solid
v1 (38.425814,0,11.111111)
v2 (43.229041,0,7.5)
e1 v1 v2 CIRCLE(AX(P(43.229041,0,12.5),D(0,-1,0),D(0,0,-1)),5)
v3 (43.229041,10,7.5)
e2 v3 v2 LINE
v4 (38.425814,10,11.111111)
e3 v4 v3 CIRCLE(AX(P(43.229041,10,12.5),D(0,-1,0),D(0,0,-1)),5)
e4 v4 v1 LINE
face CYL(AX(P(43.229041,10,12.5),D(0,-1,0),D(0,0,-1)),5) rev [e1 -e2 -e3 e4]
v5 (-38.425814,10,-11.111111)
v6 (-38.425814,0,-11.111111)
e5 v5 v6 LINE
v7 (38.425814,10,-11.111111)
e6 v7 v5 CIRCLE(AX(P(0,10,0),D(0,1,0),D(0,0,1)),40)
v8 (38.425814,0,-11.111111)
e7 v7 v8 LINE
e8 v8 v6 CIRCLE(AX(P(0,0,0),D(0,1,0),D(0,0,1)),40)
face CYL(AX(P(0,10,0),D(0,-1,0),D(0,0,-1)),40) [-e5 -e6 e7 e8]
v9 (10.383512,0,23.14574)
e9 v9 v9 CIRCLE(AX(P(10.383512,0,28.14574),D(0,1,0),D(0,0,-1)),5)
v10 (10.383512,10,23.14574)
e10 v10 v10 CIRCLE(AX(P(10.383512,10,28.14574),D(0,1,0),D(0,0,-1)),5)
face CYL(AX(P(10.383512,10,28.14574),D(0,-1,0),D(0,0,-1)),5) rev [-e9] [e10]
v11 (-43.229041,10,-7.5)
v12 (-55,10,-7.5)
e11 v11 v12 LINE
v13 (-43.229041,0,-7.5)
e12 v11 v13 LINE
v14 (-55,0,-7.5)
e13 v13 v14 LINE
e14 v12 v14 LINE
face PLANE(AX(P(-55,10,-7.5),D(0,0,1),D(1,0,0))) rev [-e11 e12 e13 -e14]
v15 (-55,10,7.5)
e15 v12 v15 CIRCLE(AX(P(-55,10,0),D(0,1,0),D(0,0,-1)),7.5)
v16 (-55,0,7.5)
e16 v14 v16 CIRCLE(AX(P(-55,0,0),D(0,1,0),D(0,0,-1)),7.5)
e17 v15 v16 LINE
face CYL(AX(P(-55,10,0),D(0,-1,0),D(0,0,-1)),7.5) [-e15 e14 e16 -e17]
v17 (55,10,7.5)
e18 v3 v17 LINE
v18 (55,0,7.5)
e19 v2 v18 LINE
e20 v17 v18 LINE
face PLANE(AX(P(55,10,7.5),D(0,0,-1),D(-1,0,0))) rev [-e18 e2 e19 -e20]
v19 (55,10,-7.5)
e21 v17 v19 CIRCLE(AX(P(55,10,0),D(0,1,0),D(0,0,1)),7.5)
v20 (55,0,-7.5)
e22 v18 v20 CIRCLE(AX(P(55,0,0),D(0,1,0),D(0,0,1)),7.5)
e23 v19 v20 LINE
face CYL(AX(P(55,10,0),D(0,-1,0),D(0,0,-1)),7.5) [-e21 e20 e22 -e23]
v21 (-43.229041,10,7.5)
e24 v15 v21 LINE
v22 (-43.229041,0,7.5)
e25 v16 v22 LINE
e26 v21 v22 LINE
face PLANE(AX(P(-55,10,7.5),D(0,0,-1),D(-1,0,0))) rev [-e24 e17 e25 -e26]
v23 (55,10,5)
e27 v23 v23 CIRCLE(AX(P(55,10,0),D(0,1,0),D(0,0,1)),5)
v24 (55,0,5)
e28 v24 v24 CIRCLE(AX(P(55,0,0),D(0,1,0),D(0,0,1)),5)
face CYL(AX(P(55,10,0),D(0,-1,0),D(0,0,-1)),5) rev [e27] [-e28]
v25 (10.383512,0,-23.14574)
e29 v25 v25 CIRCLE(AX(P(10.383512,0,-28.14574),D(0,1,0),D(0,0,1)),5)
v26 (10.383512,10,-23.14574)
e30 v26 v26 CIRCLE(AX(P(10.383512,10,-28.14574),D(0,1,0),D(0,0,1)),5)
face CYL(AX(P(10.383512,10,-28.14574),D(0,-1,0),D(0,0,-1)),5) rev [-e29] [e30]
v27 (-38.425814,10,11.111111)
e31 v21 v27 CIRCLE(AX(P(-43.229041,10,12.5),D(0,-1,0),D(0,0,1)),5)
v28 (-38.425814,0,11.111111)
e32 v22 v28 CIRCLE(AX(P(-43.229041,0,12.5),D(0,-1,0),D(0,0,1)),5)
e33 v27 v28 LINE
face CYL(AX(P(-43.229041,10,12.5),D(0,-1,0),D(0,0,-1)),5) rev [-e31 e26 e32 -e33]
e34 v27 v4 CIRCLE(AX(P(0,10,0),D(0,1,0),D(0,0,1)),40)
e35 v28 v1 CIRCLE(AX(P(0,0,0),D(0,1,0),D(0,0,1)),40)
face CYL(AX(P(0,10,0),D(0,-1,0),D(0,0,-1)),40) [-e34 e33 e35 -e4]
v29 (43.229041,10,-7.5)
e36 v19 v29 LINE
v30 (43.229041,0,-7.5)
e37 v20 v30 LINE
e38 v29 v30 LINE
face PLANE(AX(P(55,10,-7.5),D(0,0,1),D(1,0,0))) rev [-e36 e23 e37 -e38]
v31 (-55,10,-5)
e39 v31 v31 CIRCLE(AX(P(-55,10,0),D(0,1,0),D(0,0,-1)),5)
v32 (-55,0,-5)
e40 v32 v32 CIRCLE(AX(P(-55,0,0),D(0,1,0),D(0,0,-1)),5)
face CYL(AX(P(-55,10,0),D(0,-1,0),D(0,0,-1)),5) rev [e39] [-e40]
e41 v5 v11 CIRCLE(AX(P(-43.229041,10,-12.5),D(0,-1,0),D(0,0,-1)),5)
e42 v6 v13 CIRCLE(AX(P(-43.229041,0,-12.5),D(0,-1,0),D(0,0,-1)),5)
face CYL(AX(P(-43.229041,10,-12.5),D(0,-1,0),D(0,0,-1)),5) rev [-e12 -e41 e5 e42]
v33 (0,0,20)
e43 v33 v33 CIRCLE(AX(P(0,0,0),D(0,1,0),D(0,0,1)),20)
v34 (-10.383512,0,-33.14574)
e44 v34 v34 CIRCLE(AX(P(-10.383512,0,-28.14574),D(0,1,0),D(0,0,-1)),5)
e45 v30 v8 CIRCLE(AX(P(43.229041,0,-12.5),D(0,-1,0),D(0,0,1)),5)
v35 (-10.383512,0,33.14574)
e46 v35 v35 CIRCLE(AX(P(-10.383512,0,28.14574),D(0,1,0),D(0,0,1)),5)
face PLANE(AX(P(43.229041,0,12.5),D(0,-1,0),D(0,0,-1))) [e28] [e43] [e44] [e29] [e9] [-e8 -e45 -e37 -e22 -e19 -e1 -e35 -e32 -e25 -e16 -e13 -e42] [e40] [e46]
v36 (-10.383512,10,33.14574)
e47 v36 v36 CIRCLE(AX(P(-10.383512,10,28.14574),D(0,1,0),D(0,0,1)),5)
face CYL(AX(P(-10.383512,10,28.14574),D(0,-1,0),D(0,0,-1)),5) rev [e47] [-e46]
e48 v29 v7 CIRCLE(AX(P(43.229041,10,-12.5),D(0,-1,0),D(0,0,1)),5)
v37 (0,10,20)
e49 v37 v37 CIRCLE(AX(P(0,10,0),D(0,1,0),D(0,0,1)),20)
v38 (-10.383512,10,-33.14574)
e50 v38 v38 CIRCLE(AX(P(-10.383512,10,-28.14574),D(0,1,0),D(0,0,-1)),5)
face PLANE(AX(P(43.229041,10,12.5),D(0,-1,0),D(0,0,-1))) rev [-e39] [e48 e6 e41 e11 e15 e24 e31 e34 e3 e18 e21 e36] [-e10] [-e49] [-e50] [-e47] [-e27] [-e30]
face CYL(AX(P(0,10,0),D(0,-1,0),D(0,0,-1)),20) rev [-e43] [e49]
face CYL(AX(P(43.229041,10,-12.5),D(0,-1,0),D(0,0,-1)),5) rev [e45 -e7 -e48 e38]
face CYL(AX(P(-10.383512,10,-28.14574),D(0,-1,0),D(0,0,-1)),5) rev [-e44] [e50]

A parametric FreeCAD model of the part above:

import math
import FreeCAD as App
import Part
import Sketcher

V = App.Vector

doc = App.newDocument("Part")
body = doc.addObject("PartDesign::Body", "Body")

# Sketch on XZ plane
sketch1 = body.newObject("Sketcher::SketchObject", "Sketch")
sketch1.AttachmentSupport = (doc.getObject("XZ_Plane"), [""])
sketch1.MapMode = "FlatFace"
sketch1.addGeometry([
    Part.LineSegment(V(-55, 8, 0), V(-43, 8, 0)),  # 0
    Part.ArcOfCircle(Part.Circle(V(-43, 13, 0), V(0, 0, 1), 5), math.radians(-90), math.radians(-16)),  # 1
    Part.ArcOfCircle(Part.Circle(V(0, 0, 0), V(0, 0, 1), 40), math.radians(16), math.radians(164)),  # 2
    Part.ArcOfCircle(Part.Circle(V(43, 13, 0), V(0, 0, 1), 5), math.radians(-164), math.radians(-90)),  # 3
    Part.LineSegment(V(43, 8, 0), V(55, 8, 0)),  # 4
    Part.ArcOfCircle(Part.Circle(V(55, 0, 0), V(0, 0, 1), 8), math.radians(-90), math.radians(90)),  # 5
    Part.LineSegment(V(55, -8, 0), V(43, -8, 0)),  # 6
    Part.ArcOfCircle(Part.Circle(V(43, -13, 0), V(0, 0, 1), 5), math.radians(90), math.radians(164)),  # 7
    Part.ArcOfCircle(Part.Circle(V(0, 0, 0), V(0, 0, 1), 40), math.radians(-164), math.radians(-16)),  # 8
    Part.ArcOfCircle(Part.Circle(V(-43, -13, 0), V(0, 0, 1), 5), math.radians(16), math.radians(90)),  # 9
    Part.LineSegment(V(-43, -8, 0), V(-55, -8, 0)),  # 10
    Part.ArcOfCircle(Part.Circle(V(-55, 0, 0), V(0, 0, 1), 8), math.radians(90), math.radians(270)),  # 11
    Part.Circle(V(-10, 28, 0), V(0, 0, 1), 5),  # 12
    Part.Circle(V(10, 28, 0), V(0, 0, 1), 5),  # 13
    Part.Circle(V(-55, 0, 0), V(0, 0, 1), 5),  # 14
    Part.Circle(V(-10, -28, 0), V(0, 0, 1), 5),  # 15
    Part.Circle(V(0, 0, 0), V(0, 0, 1), 20),  # 16
    Part.Circle(V(55, 0, 0), V(0, 0, 1), 5),  # 17
    Part.Circle(V(10, -28, 0), V(0, 0, 1), 5),  # 18
], False)
sketch1.addConstraint([
    Sketcher.Constraint("Tangent", 0, 2, 1, 1),
    Sketcher.Constraint("Tangent", 1, 2, 2, 2),
    Sketcher.Constraint("Tangent", 2, 1, 3, 1),
    Sketcher.Constraint("Tangent", 3, 2, 4, 1),
    Sketcher.Constraint("Tangent", 4, 2, 5, 2),
    Sketcher.Constraint("Tangent", 5, 1, 6, 1),
    Sketcher.Constraint("Tangent", 6, 2, 7, 1),
    Sketcher.Constraint("Tangent", 7, 2, 8, 2),
    Sketcher.Constraint("Tangent", 8, 1, 9, 1),
    Sketcher.Constraint("Tangent", 9, 2, 10, 1),
    Sketcher.Constraint("Tangent", 10, 2, 11, 2),
    Sketcher.Constraint("Tangent", 11, 1, 0, 1),
    Sketcher.Constraint("Horizontal", 0),
    Sketcher.Constraint("Horizontal", 4),
    Sketcher.Constraint("Horizontal", 6),
    Sketcher.Constraint("Horizontal", 10),
    Sketcher.Constraint("Coincident", 2, 3, -1, 1),
    Sketcher.Constraint("Coincident", 8, 3, -1, 1),
    Sketcher.Constraint("Coincident", 16, 3, -1, 1),
    Sketcher.Constraint("Coincident", 14, 3, 11, 3),
    Sketcher.Constraint("Coincident", 17, 3, 5, 3),
    Sketcher.Constraint("Equal", 1, 3),
    Sketcher.Constraint("Equal", 3, 7),
    Sketcher.Constraint("Equal", 2, 8),
    Sketcher.Constraint("Equal", 7, 9),
    Sketcher.Constraint("Equal", 5, 11),
    Sketcher.Constraint("Equal", 9, 12),
    Sketcher.Constraint("Equal", 12, 13),
    Sketcher.Constraint("Equal", 13, 14),
    Sketcher.Constraint("Equal", 14, 15),
    Sketcher.Constraint("Equal", 15, 17),
    Sketcher.Constraint("Equal", 17, 18),
    Sketcher.Constraint("Symmetric", 5, 3, 11, 3, -1, 1),
    Sketcher.Constraint("Symmetric", 13, 3, 15, 3, -1, 1),
    Sketcher.Constraint("Symmetric", 12, 3, 18, 3, -1, 1),
    Sketcher.Constraint("Symmetric", 12, 3, 13, 3, -2),
    Sketcher.Constraint("PointOnObject", 5, 3, -1),
    Sketcher.Constraint("Diameter", 12, 10.0),
    Sketcher.Constraint("Diameter", 16, 40.0),
    Sketcher.Constraint("Radius", 2, 40.0),
    Sketcher.Constraint("Radius", 5, 7.5),
    Sketcher.Constraint("DistanceX", -1, 1, 5, 3, 55.0),
    Sketcher.Constraint("DistanceX", 12, 3, -1, 1, 10.383512),
    Sketcher.Constraint("DistanceY", -1, 1, 12, 3, 28.14574),
])
pad1 = body.newObject("PartDesign::Pad", "Pad")
pad1.Profile = sketch1
pad1.Length = 10
pad1.Reversed = True

doc.recompute()
